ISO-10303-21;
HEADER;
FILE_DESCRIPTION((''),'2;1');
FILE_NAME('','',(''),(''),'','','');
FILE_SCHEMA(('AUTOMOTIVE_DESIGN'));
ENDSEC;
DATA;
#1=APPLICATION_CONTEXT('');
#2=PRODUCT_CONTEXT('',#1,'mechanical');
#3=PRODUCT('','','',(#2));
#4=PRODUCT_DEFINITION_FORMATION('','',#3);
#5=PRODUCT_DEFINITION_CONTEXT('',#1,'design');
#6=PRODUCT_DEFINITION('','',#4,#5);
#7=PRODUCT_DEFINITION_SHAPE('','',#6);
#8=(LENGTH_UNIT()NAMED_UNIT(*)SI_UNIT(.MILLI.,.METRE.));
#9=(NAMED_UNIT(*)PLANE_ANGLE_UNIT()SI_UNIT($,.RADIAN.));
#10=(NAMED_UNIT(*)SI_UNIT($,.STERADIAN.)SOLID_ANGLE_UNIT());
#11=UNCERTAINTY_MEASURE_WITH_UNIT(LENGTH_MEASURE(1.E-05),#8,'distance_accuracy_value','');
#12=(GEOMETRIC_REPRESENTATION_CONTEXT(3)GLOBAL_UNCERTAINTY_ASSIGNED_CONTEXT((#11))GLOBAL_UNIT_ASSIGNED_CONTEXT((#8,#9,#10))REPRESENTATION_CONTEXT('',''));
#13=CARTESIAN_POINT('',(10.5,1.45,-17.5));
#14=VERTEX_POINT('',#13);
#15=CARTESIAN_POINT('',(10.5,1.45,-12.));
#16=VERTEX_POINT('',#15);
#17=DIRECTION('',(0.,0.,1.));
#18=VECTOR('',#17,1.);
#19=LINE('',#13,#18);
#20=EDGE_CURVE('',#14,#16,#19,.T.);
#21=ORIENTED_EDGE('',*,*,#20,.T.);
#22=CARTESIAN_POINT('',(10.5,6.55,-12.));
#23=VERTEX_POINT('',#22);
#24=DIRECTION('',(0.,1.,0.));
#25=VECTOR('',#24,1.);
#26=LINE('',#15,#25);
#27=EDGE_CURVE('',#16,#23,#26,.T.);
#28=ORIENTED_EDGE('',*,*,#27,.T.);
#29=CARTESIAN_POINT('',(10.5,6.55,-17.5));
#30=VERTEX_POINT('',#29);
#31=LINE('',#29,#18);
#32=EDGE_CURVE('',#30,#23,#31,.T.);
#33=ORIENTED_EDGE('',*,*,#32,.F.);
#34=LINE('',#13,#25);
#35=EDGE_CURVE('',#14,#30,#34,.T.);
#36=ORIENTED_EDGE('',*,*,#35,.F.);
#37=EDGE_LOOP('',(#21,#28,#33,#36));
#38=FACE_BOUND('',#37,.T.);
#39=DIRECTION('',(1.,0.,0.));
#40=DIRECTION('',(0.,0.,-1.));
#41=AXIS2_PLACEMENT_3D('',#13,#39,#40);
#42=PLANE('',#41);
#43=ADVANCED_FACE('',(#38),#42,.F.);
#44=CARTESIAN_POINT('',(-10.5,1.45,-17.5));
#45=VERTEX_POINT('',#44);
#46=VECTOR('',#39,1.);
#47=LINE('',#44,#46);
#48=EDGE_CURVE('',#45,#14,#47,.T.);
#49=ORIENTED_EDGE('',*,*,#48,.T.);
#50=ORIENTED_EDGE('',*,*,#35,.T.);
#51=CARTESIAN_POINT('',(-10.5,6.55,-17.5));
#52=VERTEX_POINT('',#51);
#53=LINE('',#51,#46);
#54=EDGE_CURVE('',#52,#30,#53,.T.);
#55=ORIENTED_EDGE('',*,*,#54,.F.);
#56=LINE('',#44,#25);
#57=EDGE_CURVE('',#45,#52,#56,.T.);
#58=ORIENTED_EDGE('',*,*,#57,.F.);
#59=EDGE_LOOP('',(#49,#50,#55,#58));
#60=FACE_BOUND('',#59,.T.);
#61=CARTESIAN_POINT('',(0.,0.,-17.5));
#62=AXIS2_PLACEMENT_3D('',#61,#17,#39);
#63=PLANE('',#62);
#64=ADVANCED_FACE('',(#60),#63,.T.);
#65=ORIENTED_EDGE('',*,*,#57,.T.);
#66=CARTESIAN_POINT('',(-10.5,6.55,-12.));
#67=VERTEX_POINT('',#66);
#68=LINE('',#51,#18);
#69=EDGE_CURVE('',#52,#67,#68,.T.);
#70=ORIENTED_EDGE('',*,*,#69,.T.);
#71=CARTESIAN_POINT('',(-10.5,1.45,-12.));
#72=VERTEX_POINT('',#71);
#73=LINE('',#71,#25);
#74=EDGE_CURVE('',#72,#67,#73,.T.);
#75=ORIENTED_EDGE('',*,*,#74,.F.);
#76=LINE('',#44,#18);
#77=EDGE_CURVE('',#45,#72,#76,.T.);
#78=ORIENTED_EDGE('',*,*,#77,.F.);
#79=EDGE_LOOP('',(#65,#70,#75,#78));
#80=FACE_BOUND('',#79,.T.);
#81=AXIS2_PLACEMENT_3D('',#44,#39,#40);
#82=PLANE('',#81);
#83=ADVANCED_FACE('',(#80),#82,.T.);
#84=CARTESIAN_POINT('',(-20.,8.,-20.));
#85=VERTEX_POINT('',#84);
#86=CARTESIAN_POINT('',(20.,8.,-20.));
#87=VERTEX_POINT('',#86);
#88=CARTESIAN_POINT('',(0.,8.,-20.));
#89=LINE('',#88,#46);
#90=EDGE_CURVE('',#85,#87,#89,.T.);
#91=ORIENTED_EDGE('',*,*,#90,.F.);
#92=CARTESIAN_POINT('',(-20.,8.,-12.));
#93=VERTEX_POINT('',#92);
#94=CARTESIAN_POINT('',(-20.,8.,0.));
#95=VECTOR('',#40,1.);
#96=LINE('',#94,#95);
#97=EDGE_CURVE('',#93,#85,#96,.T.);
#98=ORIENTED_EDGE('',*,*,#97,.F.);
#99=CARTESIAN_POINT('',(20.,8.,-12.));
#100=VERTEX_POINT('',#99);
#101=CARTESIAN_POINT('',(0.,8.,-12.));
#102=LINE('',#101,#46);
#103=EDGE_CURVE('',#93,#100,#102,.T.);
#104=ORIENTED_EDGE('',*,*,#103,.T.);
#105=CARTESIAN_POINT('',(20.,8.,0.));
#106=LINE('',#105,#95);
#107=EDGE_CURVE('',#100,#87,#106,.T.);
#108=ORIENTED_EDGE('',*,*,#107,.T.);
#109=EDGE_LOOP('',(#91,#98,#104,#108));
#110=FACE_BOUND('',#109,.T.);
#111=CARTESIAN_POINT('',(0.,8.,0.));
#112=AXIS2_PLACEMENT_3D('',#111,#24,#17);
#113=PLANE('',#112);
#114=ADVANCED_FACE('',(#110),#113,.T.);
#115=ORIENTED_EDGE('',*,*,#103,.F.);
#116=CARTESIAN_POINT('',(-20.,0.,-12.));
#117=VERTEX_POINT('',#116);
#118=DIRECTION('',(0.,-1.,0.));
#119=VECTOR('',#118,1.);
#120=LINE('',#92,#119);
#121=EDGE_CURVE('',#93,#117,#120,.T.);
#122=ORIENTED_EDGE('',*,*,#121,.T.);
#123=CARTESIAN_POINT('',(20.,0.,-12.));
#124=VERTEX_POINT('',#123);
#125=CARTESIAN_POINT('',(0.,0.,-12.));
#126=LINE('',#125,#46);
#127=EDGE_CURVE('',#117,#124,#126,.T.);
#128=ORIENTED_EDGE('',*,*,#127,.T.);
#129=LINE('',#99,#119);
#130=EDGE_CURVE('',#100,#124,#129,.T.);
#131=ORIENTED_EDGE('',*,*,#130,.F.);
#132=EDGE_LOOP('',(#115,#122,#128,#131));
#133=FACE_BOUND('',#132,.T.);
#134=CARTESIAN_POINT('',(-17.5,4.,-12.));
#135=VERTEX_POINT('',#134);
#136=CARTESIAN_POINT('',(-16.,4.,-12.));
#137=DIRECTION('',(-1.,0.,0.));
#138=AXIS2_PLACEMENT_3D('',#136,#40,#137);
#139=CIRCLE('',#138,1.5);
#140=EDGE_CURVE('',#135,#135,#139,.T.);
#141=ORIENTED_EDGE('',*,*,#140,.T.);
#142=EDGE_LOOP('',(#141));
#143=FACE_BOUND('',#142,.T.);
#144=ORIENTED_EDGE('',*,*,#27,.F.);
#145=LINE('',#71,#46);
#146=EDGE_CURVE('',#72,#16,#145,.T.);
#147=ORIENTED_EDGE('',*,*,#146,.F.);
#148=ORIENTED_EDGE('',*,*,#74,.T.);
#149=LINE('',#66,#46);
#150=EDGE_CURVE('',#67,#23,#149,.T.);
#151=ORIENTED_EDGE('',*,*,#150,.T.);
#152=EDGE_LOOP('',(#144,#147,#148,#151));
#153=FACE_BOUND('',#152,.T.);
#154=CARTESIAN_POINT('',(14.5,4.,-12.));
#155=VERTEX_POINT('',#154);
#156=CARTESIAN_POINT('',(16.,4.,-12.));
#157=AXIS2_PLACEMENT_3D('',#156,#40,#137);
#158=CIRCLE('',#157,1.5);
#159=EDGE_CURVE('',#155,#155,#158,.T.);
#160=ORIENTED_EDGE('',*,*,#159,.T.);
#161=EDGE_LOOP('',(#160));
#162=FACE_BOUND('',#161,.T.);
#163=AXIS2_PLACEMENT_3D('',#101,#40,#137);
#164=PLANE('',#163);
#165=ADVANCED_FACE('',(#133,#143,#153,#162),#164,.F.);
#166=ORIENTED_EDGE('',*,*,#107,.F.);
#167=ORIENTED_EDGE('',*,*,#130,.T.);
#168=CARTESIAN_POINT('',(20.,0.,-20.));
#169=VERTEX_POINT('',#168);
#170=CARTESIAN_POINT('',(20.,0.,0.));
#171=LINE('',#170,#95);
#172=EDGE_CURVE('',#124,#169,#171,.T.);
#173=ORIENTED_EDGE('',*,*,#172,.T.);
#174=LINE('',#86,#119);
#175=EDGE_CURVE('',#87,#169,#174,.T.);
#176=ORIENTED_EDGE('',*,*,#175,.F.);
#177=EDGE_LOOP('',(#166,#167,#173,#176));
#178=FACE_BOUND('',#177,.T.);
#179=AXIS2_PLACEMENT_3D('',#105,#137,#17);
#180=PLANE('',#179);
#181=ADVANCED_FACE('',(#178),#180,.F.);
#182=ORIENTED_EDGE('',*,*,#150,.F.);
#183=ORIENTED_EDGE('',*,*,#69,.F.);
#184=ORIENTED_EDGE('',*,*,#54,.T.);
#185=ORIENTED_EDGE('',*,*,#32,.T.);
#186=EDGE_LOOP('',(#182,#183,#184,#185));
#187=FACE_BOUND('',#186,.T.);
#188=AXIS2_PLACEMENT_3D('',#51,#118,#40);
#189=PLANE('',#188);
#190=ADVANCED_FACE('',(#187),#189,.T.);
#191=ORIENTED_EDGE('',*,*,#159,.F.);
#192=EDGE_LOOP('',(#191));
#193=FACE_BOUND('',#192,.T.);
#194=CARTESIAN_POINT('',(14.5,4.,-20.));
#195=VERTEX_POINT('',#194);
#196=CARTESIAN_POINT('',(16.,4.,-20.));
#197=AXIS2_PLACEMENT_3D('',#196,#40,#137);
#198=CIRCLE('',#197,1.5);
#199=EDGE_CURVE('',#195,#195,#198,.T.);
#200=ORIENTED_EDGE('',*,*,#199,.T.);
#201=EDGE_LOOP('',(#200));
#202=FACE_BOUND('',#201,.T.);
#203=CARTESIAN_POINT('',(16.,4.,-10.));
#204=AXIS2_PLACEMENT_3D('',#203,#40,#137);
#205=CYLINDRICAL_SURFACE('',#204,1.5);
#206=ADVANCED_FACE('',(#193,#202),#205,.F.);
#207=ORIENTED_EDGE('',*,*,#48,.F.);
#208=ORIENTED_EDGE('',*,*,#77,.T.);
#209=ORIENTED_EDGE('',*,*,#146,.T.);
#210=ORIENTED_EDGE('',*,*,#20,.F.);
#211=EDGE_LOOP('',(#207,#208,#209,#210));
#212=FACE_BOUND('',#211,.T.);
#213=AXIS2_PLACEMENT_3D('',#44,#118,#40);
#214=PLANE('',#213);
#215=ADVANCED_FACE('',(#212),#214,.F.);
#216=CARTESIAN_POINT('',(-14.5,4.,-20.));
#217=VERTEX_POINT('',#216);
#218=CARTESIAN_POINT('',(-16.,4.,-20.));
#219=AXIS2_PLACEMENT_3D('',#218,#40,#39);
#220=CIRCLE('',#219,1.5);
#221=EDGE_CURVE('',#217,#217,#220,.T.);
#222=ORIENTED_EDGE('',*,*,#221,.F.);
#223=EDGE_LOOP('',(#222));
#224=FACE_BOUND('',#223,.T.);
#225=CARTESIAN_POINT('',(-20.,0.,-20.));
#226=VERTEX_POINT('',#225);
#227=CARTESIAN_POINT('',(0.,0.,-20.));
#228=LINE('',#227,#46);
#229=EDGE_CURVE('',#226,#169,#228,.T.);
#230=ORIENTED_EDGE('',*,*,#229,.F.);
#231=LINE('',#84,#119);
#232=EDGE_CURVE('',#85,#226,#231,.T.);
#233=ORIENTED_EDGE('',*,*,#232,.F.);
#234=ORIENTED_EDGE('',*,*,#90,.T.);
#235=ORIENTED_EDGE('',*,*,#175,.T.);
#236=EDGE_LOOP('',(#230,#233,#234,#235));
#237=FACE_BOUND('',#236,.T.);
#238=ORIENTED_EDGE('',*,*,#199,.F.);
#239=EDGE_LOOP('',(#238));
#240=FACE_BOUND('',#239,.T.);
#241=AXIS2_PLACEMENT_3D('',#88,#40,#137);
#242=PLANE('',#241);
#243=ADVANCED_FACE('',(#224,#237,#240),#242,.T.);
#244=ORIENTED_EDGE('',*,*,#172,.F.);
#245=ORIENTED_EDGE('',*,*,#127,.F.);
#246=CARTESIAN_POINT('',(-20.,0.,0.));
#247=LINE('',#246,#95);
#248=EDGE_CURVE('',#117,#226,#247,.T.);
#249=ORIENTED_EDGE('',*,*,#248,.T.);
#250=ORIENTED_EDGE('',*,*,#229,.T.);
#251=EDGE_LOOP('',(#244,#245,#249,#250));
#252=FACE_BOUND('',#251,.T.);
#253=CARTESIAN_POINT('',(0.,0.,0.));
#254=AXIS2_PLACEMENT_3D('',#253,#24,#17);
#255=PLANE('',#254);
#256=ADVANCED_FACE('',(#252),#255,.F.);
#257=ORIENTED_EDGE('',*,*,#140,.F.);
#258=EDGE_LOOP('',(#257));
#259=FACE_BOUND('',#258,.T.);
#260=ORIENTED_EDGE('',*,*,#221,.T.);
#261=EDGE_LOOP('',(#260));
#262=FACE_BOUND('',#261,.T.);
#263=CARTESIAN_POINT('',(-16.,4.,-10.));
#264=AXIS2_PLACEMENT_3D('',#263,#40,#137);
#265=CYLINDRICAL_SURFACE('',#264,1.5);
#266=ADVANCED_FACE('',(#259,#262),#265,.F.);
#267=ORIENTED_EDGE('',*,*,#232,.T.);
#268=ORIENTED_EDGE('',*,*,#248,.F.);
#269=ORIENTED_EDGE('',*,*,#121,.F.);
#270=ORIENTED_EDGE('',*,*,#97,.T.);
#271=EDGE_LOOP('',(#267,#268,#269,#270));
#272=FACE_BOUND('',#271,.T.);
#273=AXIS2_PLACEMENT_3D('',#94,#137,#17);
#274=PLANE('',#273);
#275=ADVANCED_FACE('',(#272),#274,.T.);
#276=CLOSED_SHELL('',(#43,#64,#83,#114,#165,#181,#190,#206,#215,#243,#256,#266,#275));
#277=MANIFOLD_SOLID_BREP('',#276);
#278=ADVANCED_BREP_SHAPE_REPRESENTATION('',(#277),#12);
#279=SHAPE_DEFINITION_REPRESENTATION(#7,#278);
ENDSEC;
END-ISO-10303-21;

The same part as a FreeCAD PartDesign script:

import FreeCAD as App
import Part
import Sketcher
Q = App.Units.Quantity

doc = App.newDocument("Part")
body = doc.addObject("PartDesign::Body", "Body")

sketch1 = body.newObject("Sketcher::SketchObject", "Sketch")
sketch1.AttachmentSupport = (doc.getObject("XZ_Plane"), [""])
sketch1.MapMode = "FlatFace"
sketch1.addGeometry(Part.LineSegment(App.Vector(-20, -20, 0), App.Vector(-20, -12, 0)), False)
sketch1.addGeometry(Part.LineSegment(App.Vector(-20, -12, 0), App.Vector(20, -12, 0)), False)
sketch1.addGeometry(Part.LineSegment(App.Vector(20, -12, 0), App.Vector(20, -20, 0)), False)
sketch1.addGeometry(Part.LineSegment(App.Vector(20, -20, 0), App.Vector(-20, -20, 0)), False)
sketch1.addConstraint(Sketcher.Constraint("Coincident", 0, 2, 1, 1))
sketch1.addConstraint(Sketcher.Constraint("Coincident", 1, 2, 2, 1))
sketch1.addConstraint(Sketcher.Constraint("Coincident", 2, 2, 3, 1))
sketch1.addConstraint(Sketcher.Constraint("Coincident", 3, 2, 0, 1))
sketch1.addConstraint(Sketcher.Constraint("Vertical", 0))
sketch1.addConstraint(Sketcher.Constraint("Horizontal", 1))
sketch1.addConstraint(Sketcher.Constraint("Vertical", 2))
sketch1.addConstraint(Sketcher.Constraint("Horizontal", 3))
sketch1.addConstraint(Sketcher.Constraint("DistanceX", 1, 1, 1, 2, Q("40 mm")))
sketch1.addConstraint(Sketcher.Constraint("DistanceY", 0, 1, 0, 2, Q("8 mm")))
sketch1.addConstraint(Sketcher.Constraint("DistanceX", 0, 2, -1, 1, Q("20 mm")))
sketch1.addConstraint(Sketcher.Constraint("DistanceY", 0, 2, -1, 1, Q("12 mm")))
pad1 = body.newObject("PartDesign::Pad", "Pad")
pad1.Profile = sketch1
pad1.Length = 8
pad1.Reversed = True

sketch2 = body.newObject("Sketcher::SketchObject", "Sketch001")
sketch2.AttachmentSupport = (doc.getObject("XY_Plane"), [""])
sketch2.MapMode = "FlatFace"
sketch2.AttachmentOffset = App.Placement(App.Vector(0, 0, -12), App.Rotation())
sketch2.addGeometry(Part.LineSegment(App.Vector(-10.5, 6.55, 0), App.Vector(-10.5, 1.45, 0)), False)
sketch2.addGeometry(Part.LineSegment(App.Vector(-10.5, 1.45, 0), App.Vector(10.5, 1.45, 0)), False)
sketch2.addGeometry(Part.LineSegment(App.Vector(10.5, 1.45, 0), App.Vector(10.5, 6.55, 0)), False)
sketch2.addGeometry(Part.LineSegment(App.Vector(10.5, 6.55, 0), App.Vector(-10.5, 6.55, 0)), False)
sketch2.addConstraint(Sketcher.Constraint("Coincident", 0, 2, 1, 1))
sketch2.addConstraint(Sketcher.Constraint("Coincident", 1, 2, 2, 1))
sketch2.addConstraint(Sketcher.Constraint("Coincident", 2, 2, 3, 1))
sketch2.addConstraint(Sketcher.Constraint("Coincident", 3, 2, 0, 1))
sketch2.addConstraint(Sketcher.Constraint("Vertical", 0))
sketch2.addConstraint(Sketcher.Constraint("Horizontal", 1))
sketch2.addConstraint(Sketcher.Constraint("Vertical", 2))
sketch2.addConstraint(Sketcher.Constraint("Horizontal", 3))
sketch2.addConstraint(Sketcher.Constraint("DistanceX", 1, 1, 1, 2, Q("21 mm")))
sketch2.addConstraint(Sketcher.Constraint("DistanceY", 0, 2, 0, 1, Q("5.1 mm")))
sketch2.addConstraint(Sketcher.Constraint("DistanceX", 0, 2, -1, 1, Q("10.5 mm")))
sketch2.addConstraint(Sketcher.Constraint("DistanceY", -1, 1, 0, 2, Q("1.45 mm")))
pocket1 = body.newObject("PartDesign::Pocket", "Pocket")
pocket1.Profile = sketch2
pocket1.Length = 5.5

sketch3 = body.newObject("Sketcher::SketchObject", "Sketch002")
sketch3.AttachmentSupport = (doc.getObject("XY_Plane"), [""])
sketch3.MapMode = "FlatFace"
sketch3.AttachmentOffset = App.Placement(App.Vector(0, 0, -20), App.Rotation())
sketch3.addGeometry(Part.Circle(App.Vector(16, 4, 0), App.Vector(0, 0, 1), 1.5), False)
sketch3.addGeometry(Part.Circle(App.Vector(-16, 4, 0), App.Vector(0, 0, 1), 1.5), False)
sketch3.addConstraint(Sketcher.Constraint("Equal", 0, 1))
sketch3.addConstraint(Sketcher.Constraint("Symmetric", 0, 3, 1, 3, -2))
sketch3.addConstraint(Sketcher.Constraint("Diameter", 0, Q("3 mm")))
sketch3.addConstraint(Sketcher.Constraint("DistanceX", -1, 1, 0, 3, Q("16 mm")))
sketch3.addConstraint(Sketcher.Constraint("DistanceY", -1, 1, 0, 3, Q("4 mm")))
pocket2 = body.newObject("PartDesign::Pocket", "Pocket001")
pocket2.Profile = sketch3
pocket2.Length = 10
pocket2.Reversed = True

doc.recompute()
